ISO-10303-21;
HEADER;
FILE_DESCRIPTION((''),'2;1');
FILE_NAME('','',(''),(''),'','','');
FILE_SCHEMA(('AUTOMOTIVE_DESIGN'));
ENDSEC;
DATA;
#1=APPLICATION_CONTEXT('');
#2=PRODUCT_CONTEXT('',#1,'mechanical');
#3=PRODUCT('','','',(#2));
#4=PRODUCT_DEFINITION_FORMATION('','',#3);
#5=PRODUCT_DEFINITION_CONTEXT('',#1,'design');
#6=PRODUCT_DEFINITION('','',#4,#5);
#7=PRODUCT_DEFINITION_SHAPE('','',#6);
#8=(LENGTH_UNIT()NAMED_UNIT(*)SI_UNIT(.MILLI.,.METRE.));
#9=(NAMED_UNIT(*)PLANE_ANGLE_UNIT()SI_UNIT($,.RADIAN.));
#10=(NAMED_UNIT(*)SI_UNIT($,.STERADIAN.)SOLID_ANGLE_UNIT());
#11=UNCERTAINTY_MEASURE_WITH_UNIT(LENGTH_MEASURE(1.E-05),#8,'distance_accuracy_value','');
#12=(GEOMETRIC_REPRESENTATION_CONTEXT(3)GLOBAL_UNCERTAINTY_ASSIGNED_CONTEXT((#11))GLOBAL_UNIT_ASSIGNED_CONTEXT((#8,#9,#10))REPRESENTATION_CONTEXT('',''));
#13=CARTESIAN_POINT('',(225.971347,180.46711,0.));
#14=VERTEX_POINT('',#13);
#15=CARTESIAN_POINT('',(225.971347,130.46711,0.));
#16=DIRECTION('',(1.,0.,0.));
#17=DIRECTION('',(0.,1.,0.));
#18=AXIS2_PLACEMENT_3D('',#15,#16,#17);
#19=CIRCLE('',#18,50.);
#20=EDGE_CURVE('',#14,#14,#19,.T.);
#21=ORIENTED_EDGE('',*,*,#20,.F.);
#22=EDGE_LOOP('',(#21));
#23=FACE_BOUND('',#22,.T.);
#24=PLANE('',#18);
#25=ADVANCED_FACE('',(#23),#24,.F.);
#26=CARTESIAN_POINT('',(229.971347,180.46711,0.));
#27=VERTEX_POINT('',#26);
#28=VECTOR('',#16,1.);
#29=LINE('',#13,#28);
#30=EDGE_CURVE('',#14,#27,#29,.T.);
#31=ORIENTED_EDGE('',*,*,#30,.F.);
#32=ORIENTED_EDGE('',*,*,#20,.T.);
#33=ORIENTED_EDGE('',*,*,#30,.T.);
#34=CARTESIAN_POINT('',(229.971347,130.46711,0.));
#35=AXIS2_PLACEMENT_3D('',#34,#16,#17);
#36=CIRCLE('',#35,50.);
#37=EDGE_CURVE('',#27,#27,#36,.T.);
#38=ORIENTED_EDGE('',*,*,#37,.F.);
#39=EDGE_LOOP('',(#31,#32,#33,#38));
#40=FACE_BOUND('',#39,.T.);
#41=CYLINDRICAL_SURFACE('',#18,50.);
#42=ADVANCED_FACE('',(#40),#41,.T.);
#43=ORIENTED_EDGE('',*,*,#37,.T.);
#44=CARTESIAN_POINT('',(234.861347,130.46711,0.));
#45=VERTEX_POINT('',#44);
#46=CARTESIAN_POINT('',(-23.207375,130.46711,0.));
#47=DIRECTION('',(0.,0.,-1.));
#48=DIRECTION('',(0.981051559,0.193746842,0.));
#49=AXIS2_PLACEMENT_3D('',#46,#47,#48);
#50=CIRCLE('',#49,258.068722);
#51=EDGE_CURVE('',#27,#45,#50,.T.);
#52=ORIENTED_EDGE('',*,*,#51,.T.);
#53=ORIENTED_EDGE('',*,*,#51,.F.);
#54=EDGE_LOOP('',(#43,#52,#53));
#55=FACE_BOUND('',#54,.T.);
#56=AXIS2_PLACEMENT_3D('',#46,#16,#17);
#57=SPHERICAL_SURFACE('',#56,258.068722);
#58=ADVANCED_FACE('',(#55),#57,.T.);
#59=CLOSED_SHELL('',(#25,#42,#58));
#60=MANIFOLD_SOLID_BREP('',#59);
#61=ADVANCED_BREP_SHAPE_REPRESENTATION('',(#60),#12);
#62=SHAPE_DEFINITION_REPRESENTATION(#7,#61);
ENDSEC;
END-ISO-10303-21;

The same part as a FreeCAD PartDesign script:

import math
import FreeCAD as App
import Part
import Sketcher

V = App.Vector
Q = App.Units.Quantity

doc = App.newDocument("Part")
body = doc.addObject("PartDesign::Body", "Body")

sketch1 = doc.addObject("Sketcher::SketchObject", "Sketch")
body.addObject(sketch1)
sketch1.AttachmentSupport = (doc.XY_Plane, [""])
sketch1.MapMode = "FlatFace"
sketch1.addGeometry(Part.LineSegment(V(226, 180.5, 0), V(226, 130.5, 0)), False)
sketch1.addGeometry(Part.LineSegment(V(226, 130.5, 0), V(234.9, 130.5, 0)), False)
sketch1.addGeometry(Part.ArcOfCircle(Part.Circle(V(-23.2, 130.5, 0), V(0, 0, 1), 258.1), math.radians(0), math.radians(11.17)), False)
sketch1.addGeometry(Part.LineSegment(V(230, 180.5, 0), V(226, 180.5, 0)), False)
sketch1.addGeometry(Part.LineSegment(V(-23.2, 130.5, 0), V(234.9, 130.5, 0)), True)
sketch1.addConstraint(Sketcher.Constraint("Coincident", 0, 2, 1, 1))
sketch1.addConstraint(Sketcher.Constraint("Coincident", 1, 2, 2, 1))
sketch1.addConstraint(Sketcher.Constraint("Coincident", 2, 2, 3, 1))
sketch1.addConstraint(Sketcher.Constraint("Coincident", 3, 2, 0, 1))
sketch1.addConstraint(Sketcher.Constraint("Vertical", 0))
sketch1.addConstraint(Sketcher.Constraint("Horizontal", 1))
sketch1.addConstraint(Sketcher.Constraint("Horizontal", 3))
sketch1.addConstraint(Sketcher.Constraint("Horizontal", 4))
sketch1.addConstraint(Sketcher.Constraint("Coincident", 4, 1, 2, 3))
sketch1.addConstraint(Sketcher.Constraint("Coincident", 4, 2, 1, 2))
sketch1.addConstraint(Sketcher.Constraint("DistanceX", 3, 2, 3, 1, Q("4 mm")))
sketch1.addConstraint(Sketcher.Constraint("DistanceY", 0, 2, 0, 1, Q("50 mm")))
sketch1.addConstraint(Sketcher.Constraint("DistanceX", 1, 1, 1, 2, Q("8.89 mm")))
sketch1.addConstraint(Sketcher.Constraint("DistanceY", -1, 1, 2, 3, Q("130.46711 mm")))
sketch1.addConstraint(Sketcher.Constraint("DistanceX", 2, 3, -1, 1, Q("23.207375 mm")))
revolution = doc.addObject("PartDesign::Revolution", "Revolution")
body.addObject(revolution)
revolution.Profile = sketch1
revolution.ReferenceAxis = (sketch1, ["Axis0"])
revolution.Angle = 360

doc.recompute()
